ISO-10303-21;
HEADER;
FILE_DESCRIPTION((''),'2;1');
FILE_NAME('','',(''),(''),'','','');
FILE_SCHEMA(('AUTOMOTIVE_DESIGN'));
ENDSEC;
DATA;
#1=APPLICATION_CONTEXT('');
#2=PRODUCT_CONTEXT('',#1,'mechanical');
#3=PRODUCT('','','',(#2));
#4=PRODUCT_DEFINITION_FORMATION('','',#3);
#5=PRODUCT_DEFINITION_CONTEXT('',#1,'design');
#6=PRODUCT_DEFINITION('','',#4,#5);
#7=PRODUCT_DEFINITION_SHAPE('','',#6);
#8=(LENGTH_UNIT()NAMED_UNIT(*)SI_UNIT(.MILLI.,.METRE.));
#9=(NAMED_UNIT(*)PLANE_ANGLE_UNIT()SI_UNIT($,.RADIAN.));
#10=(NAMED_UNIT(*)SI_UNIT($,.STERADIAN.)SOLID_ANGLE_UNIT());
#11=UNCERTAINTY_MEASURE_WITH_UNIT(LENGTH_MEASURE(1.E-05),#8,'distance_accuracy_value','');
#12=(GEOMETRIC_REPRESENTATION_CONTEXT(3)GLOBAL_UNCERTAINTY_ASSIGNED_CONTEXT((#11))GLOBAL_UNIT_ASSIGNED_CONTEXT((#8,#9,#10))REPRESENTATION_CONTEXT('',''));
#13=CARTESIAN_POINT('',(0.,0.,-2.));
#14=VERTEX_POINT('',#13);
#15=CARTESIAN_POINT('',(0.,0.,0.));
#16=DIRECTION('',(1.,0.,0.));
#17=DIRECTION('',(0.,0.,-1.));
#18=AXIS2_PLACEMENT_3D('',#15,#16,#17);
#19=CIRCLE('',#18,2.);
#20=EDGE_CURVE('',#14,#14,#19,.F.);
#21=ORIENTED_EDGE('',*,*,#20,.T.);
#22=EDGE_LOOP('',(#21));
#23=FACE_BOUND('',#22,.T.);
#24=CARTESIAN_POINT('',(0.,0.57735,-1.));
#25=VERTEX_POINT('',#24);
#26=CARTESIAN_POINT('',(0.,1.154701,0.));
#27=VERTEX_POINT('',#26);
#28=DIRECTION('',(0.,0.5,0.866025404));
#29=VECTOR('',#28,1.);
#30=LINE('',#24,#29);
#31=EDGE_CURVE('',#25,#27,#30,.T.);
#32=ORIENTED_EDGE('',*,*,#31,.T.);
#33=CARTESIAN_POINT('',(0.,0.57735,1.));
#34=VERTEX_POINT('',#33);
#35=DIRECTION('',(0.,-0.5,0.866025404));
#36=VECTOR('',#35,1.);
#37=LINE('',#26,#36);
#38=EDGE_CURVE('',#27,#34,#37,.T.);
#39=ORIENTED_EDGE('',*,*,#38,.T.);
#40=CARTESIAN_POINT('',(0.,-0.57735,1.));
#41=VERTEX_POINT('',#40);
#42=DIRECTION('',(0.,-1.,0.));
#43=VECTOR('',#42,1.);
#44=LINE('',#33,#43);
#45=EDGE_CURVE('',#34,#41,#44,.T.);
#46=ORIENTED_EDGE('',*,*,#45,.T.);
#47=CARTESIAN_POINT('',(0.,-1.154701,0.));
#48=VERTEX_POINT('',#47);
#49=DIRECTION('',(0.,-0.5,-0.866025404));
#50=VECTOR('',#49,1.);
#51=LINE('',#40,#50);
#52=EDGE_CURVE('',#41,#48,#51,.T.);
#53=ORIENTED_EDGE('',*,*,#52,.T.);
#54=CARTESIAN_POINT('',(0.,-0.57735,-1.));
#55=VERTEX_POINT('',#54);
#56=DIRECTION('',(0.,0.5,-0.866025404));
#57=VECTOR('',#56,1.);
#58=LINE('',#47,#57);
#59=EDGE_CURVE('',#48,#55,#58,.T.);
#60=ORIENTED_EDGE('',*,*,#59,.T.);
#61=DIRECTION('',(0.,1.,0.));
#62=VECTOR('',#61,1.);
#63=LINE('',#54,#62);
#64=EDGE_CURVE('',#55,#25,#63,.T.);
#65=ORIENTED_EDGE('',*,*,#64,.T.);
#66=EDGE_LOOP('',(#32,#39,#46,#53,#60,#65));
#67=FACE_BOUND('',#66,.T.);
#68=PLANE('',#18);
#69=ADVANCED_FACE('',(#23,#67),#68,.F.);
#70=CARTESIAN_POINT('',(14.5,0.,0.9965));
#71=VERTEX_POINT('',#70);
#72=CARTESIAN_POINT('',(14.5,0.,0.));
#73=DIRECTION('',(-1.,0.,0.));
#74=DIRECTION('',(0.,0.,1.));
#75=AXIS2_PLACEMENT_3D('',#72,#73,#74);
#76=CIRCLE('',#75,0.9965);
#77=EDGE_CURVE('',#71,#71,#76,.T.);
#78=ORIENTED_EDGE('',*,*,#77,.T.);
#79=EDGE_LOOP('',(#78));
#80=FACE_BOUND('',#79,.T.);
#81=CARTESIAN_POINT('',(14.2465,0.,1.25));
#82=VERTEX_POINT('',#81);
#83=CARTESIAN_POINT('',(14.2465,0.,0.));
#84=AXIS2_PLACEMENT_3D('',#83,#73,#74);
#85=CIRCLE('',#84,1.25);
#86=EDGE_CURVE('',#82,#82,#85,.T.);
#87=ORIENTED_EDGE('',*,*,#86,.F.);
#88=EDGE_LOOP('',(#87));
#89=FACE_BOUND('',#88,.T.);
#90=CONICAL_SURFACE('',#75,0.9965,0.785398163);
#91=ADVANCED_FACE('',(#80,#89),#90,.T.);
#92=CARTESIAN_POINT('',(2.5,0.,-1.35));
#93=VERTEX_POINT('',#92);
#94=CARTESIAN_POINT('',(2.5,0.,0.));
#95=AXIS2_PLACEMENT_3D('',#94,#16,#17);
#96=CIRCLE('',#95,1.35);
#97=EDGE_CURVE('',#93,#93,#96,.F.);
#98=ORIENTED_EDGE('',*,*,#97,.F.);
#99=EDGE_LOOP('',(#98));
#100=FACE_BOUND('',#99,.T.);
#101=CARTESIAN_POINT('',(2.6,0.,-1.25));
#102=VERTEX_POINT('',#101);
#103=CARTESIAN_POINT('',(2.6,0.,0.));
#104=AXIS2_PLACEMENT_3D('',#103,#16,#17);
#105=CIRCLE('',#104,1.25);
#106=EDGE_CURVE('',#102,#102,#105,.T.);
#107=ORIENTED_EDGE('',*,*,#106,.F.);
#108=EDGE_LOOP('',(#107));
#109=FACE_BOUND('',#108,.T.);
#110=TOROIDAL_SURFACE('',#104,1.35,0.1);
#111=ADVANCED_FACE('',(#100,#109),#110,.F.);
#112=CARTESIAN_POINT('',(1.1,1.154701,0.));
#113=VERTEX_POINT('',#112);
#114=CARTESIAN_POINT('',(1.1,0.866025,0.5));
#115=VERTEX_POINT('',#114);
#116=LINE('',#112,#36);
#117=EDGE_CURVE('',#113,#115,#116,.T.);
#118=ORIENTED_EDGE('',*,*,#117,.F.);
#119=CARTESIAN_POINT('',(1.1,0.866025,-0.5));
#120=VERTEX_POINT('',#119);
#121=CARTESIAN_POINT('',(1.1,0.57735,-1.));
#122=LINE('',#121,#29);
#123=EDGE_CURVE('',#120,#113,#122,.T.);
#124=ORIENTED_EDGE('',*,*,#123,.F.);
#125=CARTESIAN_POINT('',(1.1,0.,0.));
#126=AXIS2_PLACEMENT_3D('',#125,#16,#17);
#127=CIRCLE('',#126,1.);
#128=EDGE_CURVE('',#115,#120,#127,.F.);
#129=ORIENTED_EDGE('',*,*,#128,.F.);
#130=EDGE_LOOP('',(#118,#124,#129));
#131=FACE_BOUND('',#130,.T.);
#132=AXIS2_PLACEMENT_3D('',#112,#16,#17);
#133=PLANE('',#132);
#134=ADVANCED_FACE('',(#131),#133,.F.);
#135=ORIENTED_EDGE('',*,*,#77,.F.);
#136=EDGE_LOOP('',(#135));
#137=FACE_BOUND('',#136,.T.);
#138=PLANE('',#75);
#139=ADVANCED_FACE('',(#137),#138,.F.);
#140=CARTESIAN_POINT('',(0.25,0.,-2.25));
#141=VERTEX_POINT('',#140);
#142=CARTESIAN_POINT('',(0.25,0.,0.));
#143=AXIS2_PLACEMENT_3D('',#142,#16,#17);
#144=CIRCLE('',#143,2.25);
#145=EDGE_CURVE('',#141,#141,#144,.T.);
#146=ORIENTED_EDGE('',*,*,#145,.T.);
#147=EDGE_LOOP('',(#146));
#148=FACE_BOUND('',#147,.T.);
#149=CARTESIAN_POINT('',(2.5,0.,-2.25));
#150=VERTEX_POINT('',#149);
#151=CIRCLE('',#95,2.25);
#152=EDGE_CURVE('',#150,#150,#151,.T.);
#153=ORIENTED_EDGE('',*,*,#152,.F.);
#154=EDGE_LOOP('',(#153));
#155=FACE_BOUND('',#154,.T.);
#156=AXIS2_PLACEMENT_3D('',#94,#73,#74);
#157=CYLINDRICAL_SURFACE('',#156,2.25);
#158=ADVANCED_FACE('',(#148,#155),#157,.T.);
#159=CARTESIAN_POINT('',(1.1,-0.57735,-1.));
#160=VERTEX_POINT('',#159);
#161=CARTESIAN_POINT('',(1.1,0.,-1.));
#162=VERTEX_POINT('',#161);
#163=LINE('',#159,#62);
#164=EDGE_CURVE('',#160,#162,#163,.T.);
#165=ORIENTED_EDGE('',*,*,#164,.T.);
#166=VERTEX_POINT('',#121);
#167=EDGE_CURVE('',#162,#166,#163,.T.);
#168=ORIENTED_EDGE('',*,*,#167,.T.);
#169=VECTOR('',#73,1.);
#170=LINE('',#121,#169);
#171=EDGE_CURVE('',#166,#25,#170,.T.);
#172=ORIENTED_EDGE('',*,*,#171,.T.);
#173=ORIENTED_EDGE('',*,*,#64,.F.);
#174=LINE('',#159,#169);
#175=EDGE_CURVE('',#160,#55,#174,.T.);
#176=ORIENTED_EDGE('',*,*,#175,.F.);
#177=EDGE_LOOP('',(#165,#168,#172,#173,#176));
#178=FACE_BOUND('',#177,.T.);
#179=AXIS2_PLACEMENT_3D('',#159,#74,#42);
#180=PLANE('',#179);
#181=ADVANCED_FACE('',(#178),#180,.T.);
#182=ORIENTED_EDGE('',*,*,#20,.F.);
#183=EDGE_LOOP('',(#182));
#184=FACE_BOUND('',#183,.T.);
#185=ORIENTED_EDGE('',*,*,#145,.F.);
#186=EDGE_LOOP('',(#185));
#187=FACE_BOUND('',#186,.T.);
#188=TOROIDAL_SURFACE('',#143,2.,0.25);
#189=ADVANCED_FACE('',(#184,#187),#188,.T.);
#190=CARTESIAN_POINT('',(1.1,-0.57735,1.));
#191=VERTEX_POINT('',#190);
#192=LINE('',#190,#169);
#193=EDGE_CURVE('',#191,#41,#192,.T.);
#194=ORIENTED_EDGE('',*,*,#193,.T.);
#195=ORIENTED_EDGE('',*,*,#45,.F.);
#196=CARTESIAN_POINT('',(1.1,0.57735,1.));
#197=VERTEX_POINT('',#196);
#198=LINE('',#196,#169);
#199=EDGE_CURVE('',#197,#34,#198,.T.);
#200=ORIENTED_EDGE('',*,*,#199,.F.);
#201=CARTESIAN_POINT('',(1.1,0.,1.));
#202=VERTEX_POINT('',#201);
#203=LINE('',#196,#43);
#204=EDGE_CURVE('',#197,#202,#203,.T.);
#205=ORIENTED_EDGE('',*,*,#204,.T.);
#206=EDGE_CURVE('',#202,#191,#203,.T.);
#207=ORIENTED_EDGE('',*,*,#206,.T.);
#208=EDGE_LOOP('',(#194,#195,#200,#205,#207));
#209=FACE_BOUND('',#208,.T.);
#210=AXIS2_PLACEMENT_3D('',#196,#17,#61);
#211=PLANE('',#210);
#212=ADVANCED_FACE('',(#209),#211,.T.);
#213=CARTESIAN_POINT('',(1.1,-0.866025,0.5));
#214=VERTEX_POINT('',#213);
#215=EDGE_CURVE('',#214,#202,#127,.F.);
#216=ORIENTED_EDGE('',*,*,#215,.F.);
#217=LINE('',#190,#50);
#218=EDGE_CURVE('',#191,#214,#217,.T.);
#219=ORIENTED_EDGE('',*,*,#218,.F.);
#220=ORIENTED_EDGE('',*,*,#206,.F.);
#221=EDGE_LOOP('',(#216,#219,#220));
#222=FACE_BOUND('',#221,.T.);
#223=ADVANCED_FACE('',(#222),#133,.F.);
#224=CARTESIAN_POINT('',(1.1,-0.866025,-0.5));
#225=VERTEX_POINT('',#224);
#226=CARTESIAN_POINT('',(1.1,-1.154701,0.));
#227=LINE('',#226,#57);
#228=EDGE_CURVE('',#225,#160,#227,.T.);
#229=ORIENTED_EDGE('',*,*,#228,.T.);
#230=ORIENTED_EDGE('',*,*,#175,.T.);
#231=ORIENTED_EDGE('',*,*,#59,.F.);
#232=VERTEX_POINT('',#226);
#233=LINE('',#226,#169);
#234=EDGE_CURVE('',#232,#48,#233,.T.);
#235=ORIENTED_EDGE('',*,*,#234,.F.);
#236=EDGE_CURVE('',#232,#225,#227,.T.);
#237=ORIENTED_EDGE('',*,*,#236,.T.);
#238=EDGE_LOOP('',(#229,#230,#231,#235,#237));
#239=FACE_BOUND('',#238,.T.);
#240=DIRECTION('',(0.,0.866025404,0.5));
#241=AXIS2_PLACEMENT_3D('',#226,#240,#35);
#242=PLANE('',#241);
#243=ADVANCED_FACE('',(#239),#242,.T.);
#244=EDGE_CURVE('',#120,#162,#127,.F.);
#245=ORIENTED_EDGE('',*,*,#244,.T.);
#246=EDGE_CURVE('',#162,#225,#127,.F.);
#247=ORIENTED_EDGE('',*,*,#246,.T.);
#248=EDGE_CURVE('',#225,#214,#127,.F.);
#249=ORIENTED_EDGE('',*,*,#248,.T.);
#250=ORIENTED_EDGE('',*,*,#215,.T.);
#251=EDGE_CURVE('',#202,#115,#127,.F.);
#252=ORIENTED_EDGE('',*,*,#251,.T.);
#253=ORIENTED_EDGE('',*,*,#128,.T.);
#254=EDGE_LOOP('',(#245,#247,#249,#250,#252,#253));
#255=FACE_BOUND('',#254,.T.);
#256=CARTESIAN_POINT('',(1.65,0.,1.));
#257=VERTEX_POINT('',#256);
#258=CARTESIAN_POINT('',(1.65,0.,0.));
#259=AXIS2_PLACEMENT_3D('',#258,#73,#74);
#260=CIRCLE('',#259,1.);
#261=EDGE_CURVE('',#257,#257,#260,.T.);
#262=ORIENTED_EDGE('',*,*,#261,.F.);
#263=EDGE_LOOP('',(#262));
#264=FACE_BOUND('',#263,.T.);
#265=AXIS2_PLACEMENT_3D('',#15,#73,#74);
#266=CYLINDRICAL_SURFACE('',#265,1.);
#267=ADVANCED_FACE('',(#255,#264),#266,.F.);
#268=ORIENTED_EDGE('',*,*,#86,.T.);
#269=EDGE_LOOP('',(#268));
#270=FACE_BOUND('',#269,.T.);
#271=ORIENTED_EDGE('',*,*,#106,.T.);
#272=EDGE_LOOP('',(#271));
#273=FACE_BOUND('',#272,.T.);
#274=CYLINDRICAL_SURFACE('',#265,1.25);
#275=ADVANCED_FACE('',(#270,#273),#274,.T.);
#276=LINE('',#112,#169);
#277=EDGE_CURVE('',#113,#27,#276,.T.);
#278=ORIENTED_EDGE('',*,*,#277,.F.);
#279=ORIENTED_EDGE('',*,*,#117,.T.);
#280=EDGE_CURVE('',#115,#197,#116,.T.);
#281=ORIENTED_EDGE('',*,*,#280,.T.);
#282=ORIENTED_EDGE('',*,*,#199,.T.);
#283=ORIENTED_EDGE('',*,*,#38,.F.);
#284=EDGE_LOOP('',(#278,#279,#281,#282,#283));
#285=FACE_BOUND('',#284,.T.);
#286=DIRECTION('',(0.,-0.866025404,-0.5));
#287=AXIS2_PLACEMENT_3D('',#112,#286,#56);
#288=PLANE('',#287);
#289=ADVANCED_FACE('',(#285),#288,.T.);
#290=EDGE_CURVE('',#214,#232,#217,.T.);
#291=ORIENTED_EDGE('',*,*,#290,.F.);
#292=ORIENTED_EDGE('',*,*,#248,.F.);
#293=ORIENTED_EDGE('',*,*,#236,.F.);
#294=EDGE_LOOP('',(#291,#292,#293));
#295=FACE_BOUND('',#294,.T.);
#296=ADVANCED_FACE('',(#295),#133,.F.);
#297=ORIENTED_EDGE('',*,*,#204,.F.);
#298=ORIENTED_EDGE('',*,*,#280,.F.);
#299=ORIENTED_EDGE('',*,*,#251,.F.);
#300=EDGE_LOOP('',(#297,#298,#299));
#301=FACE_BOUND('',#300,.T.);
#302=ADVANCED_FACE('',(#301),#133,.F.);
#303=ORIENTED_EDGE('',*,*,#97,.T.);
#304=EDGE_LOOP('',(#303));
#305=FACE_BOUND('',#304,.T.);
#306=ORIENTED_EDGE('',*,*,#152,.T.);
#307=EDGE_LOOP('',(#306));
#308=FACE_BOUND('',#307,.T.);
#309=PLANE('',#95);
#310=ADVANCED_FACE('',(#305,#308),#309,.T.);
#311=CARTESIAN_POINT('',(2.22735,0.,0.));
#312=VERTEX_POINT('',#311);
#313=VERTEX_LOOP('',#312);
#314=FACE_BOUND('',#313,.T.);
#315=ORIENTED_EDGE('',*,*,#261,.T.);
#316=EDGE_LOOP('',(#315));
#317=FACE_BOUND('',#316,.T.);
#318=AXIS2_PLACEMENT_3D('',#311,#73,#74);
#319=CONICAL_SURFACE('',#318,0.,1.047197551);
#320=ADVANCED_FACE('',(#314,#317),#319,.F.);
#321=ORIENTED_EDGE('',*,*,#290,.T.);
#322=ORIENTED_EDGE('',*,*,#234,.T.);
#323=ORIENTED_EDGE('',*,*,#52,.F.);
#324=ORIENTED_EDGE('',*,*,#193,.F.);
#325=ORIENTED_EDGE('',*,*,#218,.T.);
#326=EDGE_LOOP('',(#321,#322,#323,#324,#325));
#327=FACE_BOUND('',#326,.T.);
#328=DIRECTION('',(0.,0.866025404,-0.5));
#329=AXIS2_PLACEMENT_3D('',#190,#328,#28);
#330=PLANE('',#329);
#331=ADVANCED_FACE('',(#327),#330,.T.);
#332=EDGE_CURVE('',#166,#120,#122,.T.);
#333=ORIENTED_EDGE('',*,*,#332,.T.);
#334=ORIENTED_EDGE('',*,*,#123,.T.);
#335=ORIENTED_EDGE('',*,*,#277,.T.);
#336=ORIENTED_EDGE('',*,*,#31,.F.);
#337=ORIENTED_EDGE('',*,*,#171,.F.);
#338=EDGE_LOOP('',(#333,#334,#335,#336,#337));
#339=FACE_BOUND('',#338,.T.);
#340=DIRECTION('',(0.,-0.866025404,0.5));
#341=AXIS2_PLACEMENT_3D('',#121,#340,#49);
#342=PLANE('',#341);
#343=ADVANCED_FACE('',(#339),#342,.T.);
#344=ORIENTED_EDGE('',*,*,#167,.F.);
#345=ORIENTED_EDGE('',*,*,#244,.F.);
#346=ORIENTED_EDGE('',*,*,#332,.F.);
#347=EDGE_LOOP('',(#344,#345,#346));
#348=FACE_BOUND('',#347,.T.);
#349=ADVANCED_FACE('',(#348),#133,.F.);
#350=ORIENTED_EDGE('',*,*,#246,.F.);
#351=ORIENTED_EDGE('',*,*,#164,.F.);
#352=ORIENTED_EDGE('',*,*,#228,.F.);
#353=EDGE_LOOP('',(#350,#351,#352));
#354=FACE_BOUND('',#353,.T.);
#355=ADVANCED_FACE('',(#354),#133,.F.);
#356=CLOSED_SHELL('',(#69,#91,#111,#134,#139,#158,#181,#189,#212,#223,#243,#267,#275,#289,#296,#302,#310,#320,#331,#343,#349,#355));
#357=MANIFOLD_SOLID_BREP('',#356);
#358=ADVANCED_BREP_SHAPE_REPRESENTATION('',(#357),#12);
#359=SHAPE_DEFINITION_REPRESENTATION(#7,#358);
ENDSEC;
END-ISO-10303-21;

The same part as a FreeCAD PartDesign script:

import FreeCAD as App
import Part
import Sketcher

V = App.Vector
Q = App.Units.Quantity


def edges_at(feature, points):
    """Names of the edges that pass closest to the given points."""
    edges = feature.Shape.Edges
    near = lambda p: min(range(len(edges)), key=lambda i: edges[i].distToShape(Part.Vertex(*p))[0])
    return sorted({f"Edge{near(p) + 1}" for p in points})


def add_polygon(sketch, points):
    """Adds a closed chain of lines whose ends are joined by coincident constraints."""
    first, n = sketch.GeometryCount, len(points)
    for a, b in zip(points, points[1:] + points[:1]):
        sketch.addGeometry(Part.LineSegment(App.Vector(*a, 0), App.Vector(*b, 0)), False)
    for i in range(n):
        sketch.addConstraint(Sketcher.Constraint("Coincident", first + i, 2, first + (i + 1) % n, 1))

doc = App.newDocument("Part")
params = doc.addObject("Spreadsheet::Sheet", "Params")
for row, (alias, value) in enumerate([
    ("sketch1_diameter", "4.5 mm"),
    ("pad1_length", "2.5 mm"),
    ("sketch2_width", "14.5 mm"),
    ("sketch2_height", "1.25 mm"),
    ("revolution_angle", "360 deg"),
    ("pocket1_length", "1.1 mm"),
    ("sketch4_height", "1 mm"),
    ("sketch4_width", "1.65 mm"),
    ("groove_angle", "360 deg"),
    ("fillet_radius", "0.1 mm"),
    ("fillet2_radius", "0.25 mm"),
], start=1):
    params.set(f"A{row}", alias)
    params.set(f"B{row}", "=" + value)
    params.setAlias(f"B{row}", alias)

body = doc.addObject("PartDesign::Body", "Body")

# Sketch on YZ plane
sketch1 = body.newObject("Sketcher::SketchObject", "Sketch")
sketch1.AttachmentSupport = (doc.getObject("YZ_Plane"), [""])
sketch1.MapMode = "FlatFace"
sketch1.addGeometry(Part.Circle(V(0, 0, 0), V(0, 0, 1), 2.25), False)
sketch1.addConstraint([
    Sketcher.Constraint("Coincident", 0, 3, -1, 1),
    Sketcher.Constraint("Diameter", 0, 4.5),
])
sketch1.setExpression("Constraints[1]", "Params.sketch1_diameter")
pad1 = body.newObject("PartDesign::Pad", "Pad")
pad1.Profile = sketch1
pad1.setExpression("Length", "Params.pad1_length")

# Sketch on XY plane
sketch2 = body.newObject("Sketcher::SketchObject", "Sketch001")
sketch2.AttachmentSupport = (doc.getObject("XY_Plane"), [""])
sketch2.MapMode = "FlatFace"
add_polygon(sketch2, [(0, 0), (14.5, 0), (14.5, 0.9965), (14.2465, 1.25), (0, 1.25)])  # lines 0-4
sketch2.addConstraint([
    Sketcher.Constraint("Horizontal", 0),
    Sketcher.Constraint("Vertical", 1),
    Sketcher.Constraint("Horizontal", 3),
    Sketcher.Constraint("Vertical", 4),
    Sketcher.Constraint("Coincident", 4, 2, -1, 1),
    Sketcher.Constraint("Angle", 2, Q("135 deg")),
    Sketcher.Constraint("DistanceX", 0, 1, 0, 2, 14.5),
    Sketcher.Constraint("DistanceY", 4, 2, 4, 1, 1.25),
    Sketcher.Constraint("DistanceX", 3, 2, 3, 1, 14.2465),
])
sketch2.setExpression("Constraints[11]", "Params.sketch2_width")
sketch2.setExpression("Constraints[12]", "Params.sketch2_height")
revolution = body.newObject("PartDesign::Revolution", "Revolution")
revolution.Profile = sketch2
revolution.ReferenceAxis = (sketch2, ["H_Axis"])
revolution.setExpression("Angle", "Params.revolution_angle")

# Sketch on YZ plane
sketch3 = body.newObject("Sketcher::SketchObject", "Sketch002")
sketch3.AttachmentSupport = (doc.getObject("YZ_Plane"), [""])
sketch3.MapMode = "FlatFace"
add_polygon(sketch3, [(1.154701, 0), (0.57735, 1), (-0.57735, 1), (-1.154701, 0), (-0.57735, -1), (0.57735, -1)])  # lines 0-5
sketch3.addConstraint([
    Sketcher.Constraint("Horizontal", 1),
    Sketcher.Constraint("Horizontal", 4),
    Sketcher.Constraint("Symmetric", 0, 2, 3, 2, -1, 1),
    Sketcher.Constraint("Symmetric", 2, 2, 5, 2, -1, 1),
    Sketcher.Constraint("PointOnObject", 2, 2, -1),
    Sketcher.Constraint("Parallel", 2, 5),
    Sketcher.Constraint("Vertical", 1, 2, 3, 2),
    Sketcher.Constraint("Angle", 0, Q("120 deg")),
    Sketcher.Constraint("DistanceY", -1, 1, 0, 2, 1.0),
    Sketcher.Constraint("DistanceX", 1, 2, 1, 1, 1.154701),
])
pocket1 = body.newObject("PartDesign::Pocket", "Pocket")
pocket1.Profile = sketch3
pocket1.setExpression("Length", "Params.pocket1_length")
pocket1.Reversed = True

# Sketch on XY plane
sketch4 = body.newObject("Sketcher::SketchObject", "Sketch003")
sketch4.AttachmentSupport = (doc.getObject("XY_Plane"), [""])
sketch4.MapMode = "FlatFace"
add_polygon(sketch4, [(1.65, 1), (0, 1), (0, 0), (2.22735, 0)])  # lines 0-3
sketch4.addConstraint([
    Sketcher.Constraint("Horizontal", 0),
    Sketcher.Constraint("Vertical", 1),
    Sketcher.Constraint("Horizontal", 2),
    Sketcher.Constraint("Coincident", 1, 2, -1, 1),
    Sketcher.Constraint("DistanceY", 1, 2, 1, 1, 1.0),
    Sketcher.Constraint("Angle", 3, Q("120 deg")),
    Sketcher.Constraint("DistanceX", 0, 2, 0, 1, 1.65),
])
sketch4.setExpression("Constraints[8]", "Params.sketch4_height")
sketch4.setExpression("Constraints[10]", "Params.sketch4_width")
groove = body.newObject("PartDesign::Groove", "Groove")
groove.Profile = sketch4
groove.ReferenceAxis = (sketch4, ["H_Axis"])
groove.setExpression("Angle", "Params.groove_angle")
doc.recompute()

fillet = body.newObject("PartDesign::Fillet", "Fillet")
fillet.Base = (groove, edges_at(groove, [(2.5, 0, -1.25)]))
fillet.setExpression("Radius", "Params.fillet_radius")
doc.recompute()

fillet2 = body.newObject("PartDesign::Fillet", "Fillet001")
fillet2.Base = (fillet, edges_at(fillet, [(0, 0, 2.25)]))
fillet2.setExpression("Radius", "Params.fillet2_radius")

doc.recompute()
